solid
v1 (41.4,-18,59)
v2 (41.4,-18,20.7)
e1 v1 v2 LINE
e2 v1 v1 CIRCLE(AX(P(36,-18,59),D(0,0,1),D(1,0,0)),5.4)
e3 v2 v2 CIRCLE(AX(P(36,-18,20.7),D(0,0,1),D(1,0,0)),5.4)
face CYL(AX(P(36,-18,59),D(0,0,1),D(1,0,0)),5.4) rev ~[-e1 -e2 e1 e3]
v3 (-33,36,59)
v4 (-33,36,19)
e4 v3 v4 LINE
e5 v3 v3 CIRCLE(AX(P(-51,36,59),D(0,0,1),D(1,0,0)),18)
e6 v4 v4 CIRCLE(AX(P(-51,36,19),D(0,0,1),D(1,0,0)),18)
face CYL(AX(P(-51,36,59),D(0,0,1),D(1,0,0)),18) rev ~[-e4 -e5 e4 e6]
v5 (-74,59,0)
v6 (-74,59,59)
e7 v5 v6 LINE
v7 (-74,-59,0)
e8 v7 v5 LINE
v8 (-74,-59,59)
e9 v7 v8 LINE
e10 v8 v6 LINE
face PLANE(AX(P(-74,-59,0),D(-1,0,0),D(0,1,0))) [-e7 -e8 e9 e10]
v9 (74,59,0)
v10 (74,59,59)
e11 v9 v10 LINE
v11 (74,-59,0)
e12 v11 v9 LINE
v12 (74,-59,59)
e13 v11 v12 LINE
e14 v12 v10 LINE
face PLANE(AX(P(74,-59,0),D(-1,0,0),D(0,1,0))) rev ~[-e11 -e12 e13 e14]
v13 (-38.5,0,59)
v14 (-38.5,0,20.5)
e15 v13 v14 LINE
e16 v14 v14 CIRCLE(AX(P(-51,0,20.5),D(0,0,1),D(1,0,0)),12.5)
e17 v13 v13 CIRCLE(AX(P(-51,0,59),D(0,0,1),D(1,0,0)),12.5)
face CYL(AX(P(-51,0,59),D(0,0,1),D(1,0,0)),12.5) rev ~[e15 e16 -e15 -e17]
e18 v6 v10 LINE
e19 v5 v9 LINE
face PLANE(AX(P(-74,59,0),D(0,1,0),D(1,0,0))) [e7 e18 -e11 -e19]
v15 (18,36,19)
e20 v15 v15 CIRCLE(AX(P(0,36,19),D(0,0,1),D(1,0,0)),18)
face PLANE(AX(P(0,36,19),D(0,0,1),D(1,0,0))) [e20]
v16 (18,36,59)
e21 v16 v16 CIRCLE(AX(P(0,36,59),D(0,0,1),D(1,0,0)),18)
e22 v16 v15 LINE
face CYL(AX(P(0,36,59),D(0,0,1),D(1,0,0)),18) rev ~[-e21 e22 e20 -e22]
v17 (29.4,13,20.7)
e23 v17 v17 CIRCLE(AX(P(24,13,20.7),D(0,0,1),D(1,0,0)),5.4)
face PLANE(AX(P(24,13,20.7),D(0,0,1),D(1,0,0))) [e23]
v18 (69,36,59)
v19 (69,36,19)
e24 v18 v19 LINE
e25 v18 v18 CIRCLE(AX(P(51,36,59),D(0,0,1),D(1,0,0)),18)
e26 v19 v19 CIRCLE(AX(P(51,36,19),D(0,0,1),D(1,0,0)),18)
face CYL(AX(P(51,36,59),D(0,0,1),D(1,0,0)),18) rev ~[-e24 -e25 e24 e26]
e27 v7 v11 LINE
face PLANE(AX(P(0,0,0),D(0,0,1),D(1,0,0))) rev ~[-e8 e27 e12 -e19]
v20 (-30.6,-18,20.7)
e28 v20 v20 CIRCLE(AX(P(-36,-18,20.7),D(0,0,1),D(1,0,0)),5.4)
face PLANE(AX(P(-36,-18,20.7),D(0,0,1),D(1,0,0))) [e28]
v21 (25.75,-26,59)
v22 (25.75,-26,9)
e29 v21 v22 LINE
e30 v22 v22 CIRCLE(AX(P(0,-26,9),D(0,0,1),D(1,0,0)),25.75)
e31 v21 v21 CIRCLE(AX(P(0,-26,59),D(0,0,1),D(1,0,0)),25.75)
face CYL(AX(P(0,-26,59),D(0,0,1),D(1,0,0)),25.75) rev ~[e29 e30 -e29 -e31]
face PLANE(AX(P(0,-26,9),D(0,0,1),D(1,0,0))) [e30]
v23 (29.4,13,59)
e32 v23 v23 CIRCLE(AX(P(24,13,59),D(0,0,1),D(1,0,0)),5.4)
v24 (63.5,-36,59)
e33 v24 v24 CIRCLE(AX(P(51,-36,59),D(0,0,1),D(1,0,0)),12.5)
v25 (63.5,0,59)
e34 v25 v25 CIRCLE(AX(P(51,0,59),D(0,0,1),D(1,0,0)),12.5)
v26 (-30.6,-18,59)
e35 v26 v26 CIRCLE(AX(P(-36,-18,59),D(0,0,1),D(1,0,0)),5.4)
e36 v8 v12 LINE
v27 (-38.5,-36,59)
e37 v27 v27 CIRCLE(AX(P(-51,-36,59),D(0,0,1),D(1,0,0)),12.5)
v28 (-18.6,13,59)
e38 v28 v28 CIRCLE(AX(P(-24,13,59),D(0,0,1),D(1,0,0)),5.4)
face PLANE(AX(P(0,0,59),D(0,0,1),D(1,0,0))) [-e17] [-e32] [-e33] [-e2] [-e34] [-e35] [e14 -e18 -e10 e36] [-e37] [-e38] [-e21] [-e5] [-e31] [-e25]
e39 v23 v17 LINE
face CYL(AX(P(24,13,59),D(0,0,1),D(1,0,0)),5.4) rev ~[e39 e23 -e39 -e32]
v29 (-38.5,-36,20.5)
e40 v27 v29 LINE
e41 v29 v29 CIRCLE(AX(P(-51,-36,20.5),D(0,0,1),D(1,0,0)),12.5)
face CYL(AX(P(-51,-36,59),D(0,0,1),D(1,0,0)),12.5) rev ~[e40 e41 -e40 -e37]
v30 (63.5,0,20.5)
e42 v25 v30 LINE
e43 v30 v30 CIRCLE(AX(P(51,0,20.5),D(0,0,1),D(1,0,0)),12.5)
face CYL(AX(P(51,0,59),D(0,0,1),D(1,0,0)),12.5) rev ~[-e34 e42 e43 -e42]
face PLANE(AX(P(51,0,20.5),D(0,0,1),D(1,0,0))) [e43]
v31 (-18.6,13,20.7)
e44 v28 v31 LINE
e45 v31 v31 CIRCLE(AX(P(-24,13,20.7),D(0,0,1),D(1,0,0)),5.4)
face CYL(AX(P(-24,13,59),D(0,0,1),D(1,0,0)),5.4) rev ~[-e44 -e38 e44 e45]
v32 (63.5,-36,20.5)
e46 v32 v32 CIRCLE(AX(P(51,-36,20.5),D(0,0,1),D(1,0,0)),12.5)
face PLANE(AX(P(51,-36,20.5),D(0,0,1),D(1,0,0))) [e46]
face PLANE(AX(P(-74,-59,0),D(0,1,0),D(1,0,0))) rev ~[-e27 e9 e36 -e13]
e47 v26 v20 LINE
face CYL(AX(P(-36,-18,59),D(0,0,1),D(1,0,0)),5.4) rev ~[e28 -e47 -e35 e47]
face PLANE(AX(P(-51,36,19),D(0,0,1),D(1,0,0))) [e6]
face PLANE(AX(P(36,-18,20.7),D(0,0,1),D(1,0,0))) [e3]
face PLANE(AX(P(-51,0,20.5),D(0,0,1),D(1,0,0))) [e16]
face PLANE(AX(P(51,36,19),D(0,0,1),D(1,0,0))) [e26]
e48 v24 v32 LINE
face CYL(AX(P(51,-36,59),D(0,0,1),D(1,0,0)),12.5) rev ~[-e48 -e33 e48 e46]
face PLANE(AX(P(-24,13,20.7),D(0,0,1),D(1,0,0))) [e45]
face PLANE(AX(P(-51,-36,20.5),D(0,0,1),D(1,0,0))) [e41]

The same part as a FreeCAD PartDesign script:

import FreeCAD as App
import Part
import Sketcher


def add_polygon(sketch, points):
    """Adds a closed chain of lines whose ends are joined by coincident constraints."""
    first, n = sketch.GeometryCount, len(points)
    for a, b in zip(points, points[1:] + points[:1]):
        sketch.addGeometry(Part.LineSegment(App.Vector(*a, 0), App.Vector(*b, 0)), False)
    for i in range(n):
        sketch.addConstraint(Sketcher.Constraint("Coincident", first + i, 2, first + (i + 1) % n, 1))

doc = App.newDocument("Part")
params = doc.addObject("Spreadsheet::Sheet", "Params")
for row, (alias, value) in enumerate([
    ("sketch1_width", "148 mm"),
    ("sketch1_height", "118 mm"),
    ("pad1_length", "59 mm"),
    ("sketch2_diameter", "51.5 mm"),
    ("pocket1_length", "50 mm"),
    ("sketch3_diameter", "36 mm"),
    ("pocket2_length", "40 mm"),
    ("sketch4_diameter", "25 mm"),
    ("pocket3_length", "38.5 mm"),
    ("sketch5_diameter", "10.8 mm"),
    ("pocket4_length", "38.3 mm"),
], start=1):
    params.set(f"A{row}", alias)
    params.set(f"B{row}", "=" + value)
    params.setAlias(f"B{row}", alias)

body = doc.addObject("PartDesign::Body", "Body")

sketch1 = doc.addObject("Sketcher::SketchObject", "Sketch")
body.addObject(sketch1)
sketch1.AttachmentSupport = (doc.XY_Plane, [""])
sketch1.MapMode = "FlatFace"
add_polygon(sketch1, [(-74, 59), (-74, -59), (74, -59), (74, 59)])
sketch1.addConstraint([
    Sketcher.Constraint("Vertical", 0),
    Sketcher.Constraint("Horizontal", 1),
    Sketcher.Constraint("Vertical", 2),
    Sketcher.Constraint("Horizontal", 3),
    Sketcher.Constraint("Symmetric", 0, 2, 2, 2, -1, 1),
    Sketcher.Constraint("DistanceX", 1, 1, 1, 2, 148.0),
    Sketcher.Constraint("DistanceY", 0, 2, 0, 1, 118.0),
])
sketch1.setExpression("Constraints[9]", "Params.sketch1_width")
sketch1.setExpression("Constraints[10]", "Params.sketch1_height")
pad1 = doc.addObject("PartDesign::Pad", "Pad")
body.addObject(pad1)
pad1.Profile = sketch1
pad1.setExpression("Length", "Params.pad1_length")

sketch2 = doc.addObject("Sketcher::SketchObject", "Sketch001")
body.addObject(sketch2)
sketch2.AttachmentSupport = (doc.XY_Plane, [""])
sketch2.MapMode = "FlatFace"
sketch2.AttachmentOffset = App.Placement(App.Vector(0, 0, 59), App.Rotation())
sketch2.addGeometry(Part.Circle(App.Vector(0, -26, 0), App.Vector(0, 0, 1), 26), False)
sketch2.addConstraint([
    Sketcher.Constraint("PointOnObject", 0, 3, -2),
    Sketcher.Constraint("Diameter", 0, 51.5),
    Sketcher.Constraint("DistanceY", 0, 3, -1, 1, 26.0),
])
sketch2.setExpression("Constraints[1]", "Params.sketch2_diameter")
pocket1 = doc.addObject("PartDesign::Pocket", "Pocket")
body.addObject(pocket1)
pocket1.Profile = sketch2
pocket1.setExpression("Length", "Params.pocket1_length")

sketch3 = doc.addObject("Sketcher::SketchObject", "Sketch002")
body.addObject(sketch3)
sketch3.AttachmentSupport = (doc.XY_Plane, [""])
sketch3.MapMode = "FlatFace"
sketch3.AttachmentOffset = App.Placement(App.Vector(0, 0, 59), App.Rotation())
sketch3.addGeometry([
    Part.Circle(App.Vector(-51, 36, 0), App.Vector(0, 0, 1), 18),
    Part.Circle(App.Vector(0, 36, 0), App.Vector(0, 0, 1), 18),
    Part.Circle(App.Vector(51, 36, 0), App.Vector(0, 0, 1), 18),
], False)
sketch3.addConstraint([
    Sketcher.Constraint("Equal", 0, 1),
    Sketcher.Constraint("Equal", 1, 2),
    Sketcher.Constraint("Symmetric", 0, 3, 2, 3, -2),
    Sketcher.Constraint("PointOnObject", 1, 3, -2),
    Sketcher.Constraint("Horizontal", 0, 3, 1, 3),
    Sketcher.Constraint("Diameter", 0, 36.0),
    Sketcher.Constraint("DistanceX", 0, 3, -1, 1, 51.0),
    Sketcher.Constraint("DistanceY", -1, 1, 0, 3, 36.0),
])
sketch3.setExpression("Constraints[5]", "Params.sketch3_diameter")
pocket2 = doc.addObject("PartDesign::Pocket", "Pocket001")
body.addObject(pocket2)
pocket2.Profile = sketch3
pocket2.setExpression("Length", "Params.pocket2_length")

sketch4 = doc.addObject("Sketcher::SketchObject", "Sketch003")
body.addObject(sketch4)
sketch4.AttachmentSupport = (doc.XY_Plane, [""])
sketch4.MapMode = "FlatFace"
sketch4.AttachmentOffset = App.Placement(App.Vector(0, 0, 59), App.Rotation())
sketch4.addGeometry([
    Part.Circle(App.Vector(-51, 0, 0), App.Vector(0, 0, 1), 12),
    Part.Circle(App.Vector(-51, -36, 0), App.Vector(0, 0, 1), 12),
    Part.Circle(App.Vector(51, 0, 0), App.Vector(0, 0, 1), 12),
    Part.Circle(App.Vector(51, -36, 0), App.Vector(0, 0, 1), 12),
], False)
sketch4.addConstraint([
    Sketcher.Constraint("Equal", 0, 1),
    Sketcher.Constraint("Equal", 1, 2),
    Sketcher.Constraint("Equal", 2, 3),
    Sketcher.Constraint("Symmetric", 0, 3, 2, 3, -1, 1),
    Sketcher.Constraint("Symmetric", 1, 3, 3, 3, -2),
    Sketcher.Constraint("PointOnObject", 0, 3, -1),
    Sketcher.Constraint("Vertical", 0, 3, 1, 3),
    Sketcher.Constraint("Diameter", 0, 25.0),
    Sketcher.Constraint("DistanceX", 0, 3, -1, 1, 51.0),
    Sketcher.Constraint("DistanceY", 1, 3, -1, 1, 36.0),
])
sketch4.setExpression("Constraints[7]", "Params.sketch4_diameter")
pocket3 = doc.addObject("PartDesign::Pocket", "Pocket002")
body.addObject(pocket3)
pocket3.Profile = sketch4
pocket3.setExpression("Length", "Params.pocket3_length")

sketch5 = doc.addObject("Sketcher::SketchObject", "Sketch004")
body.addObject(sketch5)
sketch5.AttachmentSupport = (doc.XY_Plane, [""])
sketch5.MapMode = "FlatFace"
sketch5.AttachmentOffset = App.Placement(App.Vector(0, 0, 59), App.Rotation())
sketch5.addGeometry([
    Part.Circle(App.Vector(-24, 13, 0), App.Vector(0, 0, 1), 5),
    Part.Circle(App.Vector(-36, -18, 0), App.Vector(0, 0, 1), 5),
    Part.Circle(App.Vector(24, 13, 0), App.Vector(0, 0, 1), 5),
    Part.Circle(App.Vector(36, -18, 0), App.Vector(0, 0, 1), 5),
], False)
sketch5.addConstraint([
    Sketcher.Constraint("Equal", 0, 1),
    Sketcher.Constraint("Equal", 1, 2),
    Sketcher.Constraint("Equal", 2, 3),
    Sketcher.Constraint("Symmetric", 0, 3, 2, 3, -2),
    Sketcher.Constraint("Symmetric", 1, 3, 3, 3, -2),
    Sketcher.Constraint("Diameter", 0, 10.8),
    Sketcher.Constraint("DistanceX", 0, 3, -1, 1, 24.0),
    Sketcher.Constraint("DistanceY", -1, 1, 0, 3, 13.0),
    Sketcher.Constraint("DistanceX", 1, 3, -1, 1, 36.0),
    Sketcher.Constraint("DistanceY", 1, 3, -1, 1, 18.0),
])
sketch5.setExpression("Constraints[5]", "Params.sketch5_diameter")
pocket4 = doc.addObject("PartDesign::Pocket", "Pocket003")
body.addObject(pocket4)
pocket4.Profile = sketch5
pocket4.setExpression("Length", "Params.pocket4_length")

doc.recompute()
